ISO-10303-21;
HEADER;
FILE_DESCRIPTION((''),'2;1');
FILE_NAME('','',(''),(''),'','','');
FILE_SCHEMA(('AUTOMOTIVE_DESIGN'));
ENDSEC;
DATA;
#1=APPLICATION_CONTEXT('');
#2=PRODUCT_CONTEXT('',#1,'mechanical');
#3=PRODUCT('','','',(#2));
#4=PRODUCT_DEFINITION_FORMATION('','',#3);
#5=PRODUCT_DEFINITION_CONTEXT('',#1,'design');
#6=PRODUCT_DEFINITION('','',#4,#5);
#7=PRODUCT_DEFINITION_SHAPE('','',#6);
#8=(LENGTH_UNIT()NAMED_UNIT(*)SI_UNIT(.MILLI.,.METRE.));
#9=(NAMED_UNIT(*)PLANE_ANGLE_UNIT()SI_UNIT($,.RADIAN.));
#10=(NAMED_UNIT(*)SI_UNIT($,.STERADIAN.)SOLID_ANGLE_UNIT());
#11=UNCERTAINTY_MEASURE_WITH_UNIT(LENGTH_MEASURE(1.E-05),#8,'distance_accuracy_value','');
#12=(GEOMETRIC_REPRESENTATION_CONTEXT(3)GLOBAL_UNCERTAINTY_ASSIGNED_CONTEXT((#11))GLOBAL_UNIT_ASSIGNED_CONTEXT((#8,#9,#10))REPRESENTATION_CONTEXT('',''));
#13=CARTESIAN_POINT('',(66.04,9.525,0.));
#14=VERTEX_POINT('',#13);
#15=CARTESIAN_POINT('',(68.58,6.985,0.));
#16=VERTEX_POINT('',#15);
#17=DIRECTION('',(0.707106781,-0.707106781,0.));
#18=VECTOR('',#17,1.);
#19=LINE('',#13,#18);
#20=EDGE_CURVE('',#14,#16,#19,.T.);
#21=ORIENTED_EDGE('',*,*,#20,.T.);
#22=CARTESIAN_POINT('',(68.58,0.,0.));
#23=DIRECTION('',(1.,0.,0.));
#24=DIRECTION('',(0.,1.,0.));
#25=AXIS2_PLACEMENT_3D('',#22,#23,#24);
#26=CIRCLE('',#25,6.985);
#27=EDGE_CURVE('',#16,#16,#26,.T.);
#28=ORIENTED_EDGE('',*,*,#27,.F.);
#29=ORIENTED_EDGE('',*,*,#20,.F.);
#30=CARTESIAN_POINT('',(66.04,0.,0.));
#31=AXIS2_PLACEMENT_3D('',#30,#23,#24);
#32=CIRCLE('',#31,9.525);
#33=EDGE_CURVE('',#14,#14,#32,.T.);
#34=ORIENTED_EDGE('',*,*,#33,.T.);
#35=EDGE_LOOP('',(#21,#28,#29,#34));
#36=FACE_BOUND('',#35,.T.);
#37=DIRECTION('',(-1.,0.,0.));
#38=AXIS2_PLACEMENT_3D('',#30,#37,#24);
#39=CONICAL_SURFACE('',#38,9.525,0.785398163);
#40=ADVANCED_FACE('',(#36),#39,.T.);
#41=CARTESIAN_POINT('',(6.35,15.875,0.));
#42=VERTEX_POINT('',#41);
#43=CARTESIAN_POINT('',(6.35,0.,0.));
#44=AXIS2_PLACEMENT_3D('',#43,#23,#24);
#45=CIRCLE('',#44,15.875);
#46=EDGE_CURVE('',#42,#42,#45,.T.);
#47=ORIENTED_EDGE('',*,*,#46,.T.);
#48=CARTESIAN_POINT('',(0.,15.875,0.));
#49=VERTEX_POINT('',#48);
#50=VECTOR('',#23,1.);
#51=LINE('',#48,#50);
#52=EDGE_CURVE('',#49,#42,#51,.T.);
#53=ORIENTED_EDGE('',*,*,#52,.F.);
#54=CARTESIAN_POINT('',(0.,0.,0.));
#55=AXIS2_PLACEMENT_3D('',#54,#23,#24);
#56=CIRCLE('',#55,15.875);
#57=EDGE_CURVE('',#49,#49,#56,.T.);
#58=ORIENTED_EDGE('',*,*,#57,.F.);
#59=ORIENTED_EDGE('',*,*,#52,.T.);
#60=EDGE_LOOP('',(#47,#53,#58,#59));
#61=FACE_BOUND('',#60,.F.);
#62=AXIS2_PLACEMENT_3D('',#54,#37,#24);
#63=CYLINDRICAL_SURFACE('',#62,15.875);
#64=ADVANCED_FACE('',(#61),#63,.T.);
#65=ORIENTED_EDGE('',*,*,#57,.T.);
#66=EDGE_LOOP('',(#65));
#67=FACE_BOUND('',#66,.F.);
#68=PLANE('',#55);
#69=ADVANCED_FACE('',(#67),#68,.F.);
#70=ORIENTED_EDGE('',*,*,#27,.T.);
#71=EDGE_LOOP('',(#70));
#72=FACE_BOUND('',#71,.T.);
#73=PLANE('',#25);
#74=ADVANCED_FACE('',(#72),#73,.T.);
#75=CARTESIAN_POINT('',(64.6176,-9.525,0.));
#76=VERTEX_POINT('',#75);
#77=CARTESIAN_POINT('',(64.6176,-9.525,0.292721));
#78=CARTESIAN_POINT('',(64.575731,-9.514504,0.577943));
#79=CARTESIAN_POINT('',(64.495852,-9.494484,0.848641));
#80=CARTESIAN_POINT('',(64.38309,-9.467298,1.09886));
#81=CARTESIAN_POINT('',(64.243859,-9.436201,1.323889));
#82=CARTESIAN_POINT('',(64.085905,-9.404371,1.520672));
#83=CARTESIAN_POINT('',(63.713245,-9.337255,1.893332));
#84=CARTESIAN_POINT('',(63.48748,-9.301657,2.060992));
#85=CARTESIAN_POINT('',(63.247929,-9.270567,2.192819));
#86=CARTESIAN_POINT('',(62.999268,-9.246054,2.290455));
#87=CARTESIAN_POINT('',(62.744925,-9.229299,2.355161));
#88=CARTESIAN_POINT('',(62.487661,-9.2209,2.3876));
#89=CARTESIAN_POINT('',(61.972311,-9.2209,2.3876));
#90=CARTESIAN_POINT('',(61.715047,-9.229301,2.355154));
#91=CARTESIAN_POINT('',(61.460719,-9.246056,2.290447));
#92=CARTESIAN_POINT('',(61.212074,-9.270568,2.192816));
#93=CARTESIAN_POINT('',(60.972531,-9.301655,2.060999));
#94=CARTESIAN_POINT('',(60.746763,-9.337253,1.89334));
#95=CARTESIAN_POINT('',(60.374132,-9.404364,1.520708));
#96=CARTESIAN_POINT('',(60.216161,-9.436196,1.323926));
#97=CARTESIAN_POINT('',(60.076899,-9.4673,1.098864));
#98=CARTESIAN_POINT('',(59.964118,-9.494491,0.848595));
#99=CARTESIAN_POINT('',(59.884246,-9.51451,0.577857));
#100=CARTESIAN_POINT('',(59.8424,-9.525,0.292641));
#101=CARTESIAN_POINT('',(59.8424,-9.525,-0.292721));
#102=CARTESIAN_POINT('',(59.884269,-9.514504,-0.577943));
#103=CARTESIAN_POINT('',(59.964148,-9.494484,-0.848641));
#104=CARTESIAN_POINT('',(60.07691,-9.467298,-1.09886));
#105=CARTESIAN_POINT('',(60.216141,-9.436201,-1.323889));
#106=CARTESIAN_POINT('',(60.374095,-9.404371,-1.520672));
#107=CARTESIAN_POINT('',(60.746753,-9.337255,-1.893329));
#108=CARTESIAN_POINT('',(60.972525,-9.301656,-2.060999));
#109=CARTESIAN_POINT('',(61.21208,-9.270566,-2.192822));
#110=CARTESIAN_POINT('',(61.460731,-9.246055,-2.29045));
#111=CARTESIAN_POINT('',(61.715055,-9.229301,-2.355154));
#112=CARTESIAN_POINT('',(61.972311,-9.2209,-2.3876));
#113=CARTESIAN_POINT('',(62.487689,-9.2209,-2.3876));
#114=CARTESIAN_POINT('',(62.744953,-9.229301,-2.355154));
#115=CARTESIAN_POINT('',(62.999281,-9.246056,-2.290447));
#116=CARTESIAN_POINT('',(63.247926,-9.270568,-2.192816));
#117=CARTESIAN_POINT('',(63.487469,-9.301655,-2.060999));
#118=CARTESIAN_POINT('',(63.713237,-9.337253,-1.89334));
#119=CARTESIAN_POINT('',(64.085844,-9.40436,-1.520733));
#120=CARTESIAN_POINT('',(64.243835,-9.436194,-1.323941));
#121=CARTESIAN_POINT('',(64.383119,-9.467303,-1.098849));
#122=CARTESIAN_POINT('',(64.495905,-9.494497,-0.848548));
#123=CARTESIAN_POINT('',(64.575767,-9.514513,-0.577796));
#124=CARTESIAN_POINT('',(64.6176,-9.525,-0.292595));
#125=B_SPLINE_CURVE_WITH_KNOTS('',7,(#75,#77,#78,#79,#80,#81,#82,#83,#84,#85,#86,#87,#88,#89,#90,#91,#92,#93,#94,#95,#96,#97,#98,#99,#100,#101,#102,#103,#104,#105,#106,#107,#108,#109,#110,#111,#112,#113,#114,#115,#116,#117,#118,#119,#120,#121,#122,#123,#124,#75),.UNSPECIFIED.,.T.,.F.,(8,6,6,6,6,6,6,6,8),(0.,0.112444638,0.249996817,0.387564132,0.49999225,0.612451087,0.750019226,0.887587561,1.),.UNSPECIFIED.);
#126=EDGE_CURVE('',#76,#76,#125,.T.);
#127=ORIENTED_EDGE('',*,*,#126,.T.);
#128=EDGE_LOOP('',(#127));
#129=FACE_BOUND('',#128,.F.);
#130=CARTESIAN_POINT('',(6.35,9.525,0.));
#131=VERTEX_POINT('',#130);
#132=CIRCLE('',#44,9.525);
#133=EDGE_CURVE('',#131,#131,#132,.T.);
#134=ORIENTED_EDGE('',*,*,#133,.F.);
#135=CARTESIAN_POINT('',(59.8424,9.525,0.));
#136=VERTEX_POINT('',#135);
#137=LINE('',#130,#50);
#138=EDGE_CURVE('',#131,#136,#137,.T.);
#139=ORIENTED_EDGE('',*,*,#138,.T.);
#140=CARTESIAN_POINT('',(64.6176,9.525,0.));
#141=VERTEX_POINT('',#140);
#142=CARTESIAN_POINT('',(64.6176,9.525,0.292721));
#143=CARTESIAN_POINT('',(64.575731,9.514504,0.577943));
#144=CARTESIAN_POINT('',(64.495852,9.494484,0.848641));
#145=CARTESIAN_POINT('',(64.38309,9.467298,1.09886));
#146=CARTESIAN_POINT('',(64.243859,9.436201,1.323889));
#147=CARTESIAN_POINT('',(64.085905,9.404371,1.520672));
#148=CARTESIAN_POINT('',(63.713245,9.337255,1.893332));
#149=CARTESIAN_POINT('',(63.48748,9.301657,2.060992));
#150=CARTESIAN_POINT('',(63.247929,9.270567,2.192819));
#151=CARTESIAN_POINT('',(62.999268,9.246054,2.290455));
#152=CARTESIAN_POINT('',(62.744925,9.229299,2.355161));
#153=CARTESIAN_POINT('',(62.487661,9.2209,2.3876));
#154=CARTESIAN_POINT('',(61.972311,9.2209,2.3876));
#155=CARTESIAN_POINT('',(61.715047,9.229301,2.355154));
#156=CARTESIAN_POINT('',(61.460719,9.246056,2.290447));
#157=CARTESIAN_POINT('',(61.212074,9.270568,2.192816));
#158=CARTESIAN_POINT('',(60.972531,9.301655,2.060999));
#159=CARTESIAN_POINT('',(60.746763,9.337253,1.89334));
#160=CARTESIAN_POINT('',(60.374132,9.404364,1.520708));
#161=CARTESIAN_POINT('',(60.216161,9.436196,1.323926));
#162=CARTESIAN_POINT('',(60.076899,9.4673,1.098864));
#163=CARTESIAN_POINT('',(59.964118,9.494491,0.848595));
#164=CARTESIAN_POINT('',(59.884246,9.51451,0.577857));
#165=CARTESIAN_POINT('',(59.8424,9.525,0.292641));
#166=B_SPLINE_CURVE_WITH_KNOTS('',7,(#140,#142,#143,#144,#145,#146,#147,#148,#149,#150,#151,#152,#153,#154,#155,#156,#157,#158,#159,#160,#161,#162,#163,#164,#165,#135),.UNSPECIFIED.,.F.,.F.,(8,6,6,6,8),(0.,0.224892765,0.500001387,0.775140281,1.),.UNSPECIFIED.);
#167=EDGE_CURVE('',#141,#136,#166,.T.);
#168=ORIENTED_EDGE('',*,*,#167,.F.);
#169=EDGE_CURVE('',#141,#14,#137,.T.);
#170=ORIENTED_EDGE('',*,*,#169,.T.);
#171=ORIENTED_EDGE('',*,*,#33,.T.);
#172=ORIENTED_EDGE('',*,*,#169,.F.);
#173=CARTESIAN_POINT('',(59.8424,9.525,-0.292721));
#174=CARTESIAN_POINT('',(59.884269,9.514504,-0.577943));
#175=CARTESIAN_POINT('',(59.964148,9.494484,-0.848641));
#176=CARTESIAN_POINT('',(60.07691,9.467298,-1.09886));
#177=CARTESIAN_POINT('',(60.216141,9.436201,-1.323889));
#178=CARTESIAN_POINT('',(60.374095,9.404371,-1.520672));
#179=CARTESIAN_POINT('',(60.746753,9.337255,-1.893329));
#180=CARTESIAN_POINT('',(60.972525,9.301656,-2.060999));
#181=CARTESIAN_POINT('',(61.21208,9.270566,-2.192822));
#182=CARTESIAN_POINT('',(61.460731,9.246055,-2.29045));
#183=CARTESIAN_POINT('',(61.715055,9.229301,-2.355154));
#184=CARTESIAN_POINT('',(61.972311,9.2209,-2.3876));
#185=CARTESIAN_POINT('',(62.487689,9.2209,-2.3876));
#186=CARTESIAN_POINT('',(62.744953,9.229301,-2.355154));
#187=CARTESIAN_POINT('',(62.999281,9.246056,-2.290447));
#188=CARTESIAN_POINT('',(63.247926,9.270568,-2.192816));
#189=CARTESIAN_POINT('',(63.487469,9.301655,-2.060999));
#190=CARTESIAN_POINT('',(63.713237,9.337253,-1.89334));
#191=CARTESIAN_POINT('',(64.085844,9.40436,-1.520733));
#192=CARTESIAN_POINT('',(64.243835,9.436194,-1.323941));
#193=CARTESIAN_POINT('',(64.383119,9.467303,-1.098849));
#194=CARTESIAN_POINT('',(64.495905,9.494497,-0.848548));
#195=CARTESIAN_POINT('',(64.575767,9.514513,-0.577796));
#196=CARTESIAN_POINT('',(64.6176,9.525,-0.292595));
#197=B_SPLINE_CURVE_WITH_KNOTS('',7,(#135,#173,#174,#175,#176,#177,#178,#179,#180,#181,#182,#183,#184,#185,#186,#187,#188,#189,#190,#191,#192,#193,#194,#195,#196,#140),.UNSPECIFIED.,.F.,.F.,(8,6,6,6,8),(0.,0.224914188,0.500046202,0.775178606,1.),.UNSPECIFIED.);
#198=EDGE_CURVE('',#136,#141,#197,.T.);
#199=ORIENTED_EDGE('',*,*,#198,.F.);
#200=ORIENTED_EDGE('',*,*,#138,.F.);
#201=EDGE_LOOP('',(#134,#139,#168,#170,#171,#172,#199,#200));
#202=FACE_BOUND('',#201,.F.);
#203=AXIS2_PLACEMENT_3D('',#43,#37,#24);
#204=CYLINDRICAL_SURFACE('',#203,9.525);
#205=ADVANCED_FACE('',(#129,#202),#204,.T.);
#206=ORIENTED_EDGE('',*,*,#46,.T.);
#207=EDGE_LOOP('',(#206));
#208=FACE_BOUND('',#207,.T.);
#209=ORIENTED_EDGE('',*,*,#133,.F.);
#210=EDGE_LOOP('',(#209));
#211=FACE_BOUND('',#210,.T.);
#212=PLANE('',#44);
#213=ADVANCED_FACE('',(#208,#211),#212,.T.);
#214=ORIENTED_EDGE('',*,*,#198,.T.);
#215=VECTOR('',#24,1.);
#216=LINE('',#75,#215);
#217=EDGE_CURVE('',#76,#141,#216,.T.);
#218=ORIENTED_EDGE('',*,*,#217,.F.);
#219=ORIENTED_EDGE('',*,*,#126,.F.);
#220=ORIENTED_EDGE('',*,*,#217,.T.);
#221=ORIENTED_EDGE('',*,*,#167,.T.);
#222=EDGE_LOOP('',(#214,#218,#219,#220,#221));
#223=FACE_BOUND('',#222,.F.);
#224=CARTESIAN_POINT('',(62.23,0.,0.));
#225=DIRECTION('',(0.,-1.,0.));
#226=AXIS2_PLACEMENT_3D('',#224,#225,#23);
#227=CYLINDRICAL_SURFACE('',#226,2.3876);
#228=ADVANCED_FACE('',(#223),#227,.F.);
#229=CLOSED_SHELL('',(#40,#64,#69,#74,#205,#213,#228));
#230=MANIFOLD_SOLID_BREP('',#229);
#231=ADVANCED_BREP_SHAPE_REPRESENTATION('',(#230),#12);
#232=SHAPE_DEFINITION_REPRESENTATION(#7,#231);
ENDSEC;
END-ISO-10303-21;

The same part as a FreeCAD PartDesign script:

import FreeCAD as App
import Part
import Sketcher
Q = App.Units.Quantity


def edges_at(feature, points):
    """Names of the edges that pass closest to the given points."""
    edges = feature.Shape.Edges
    near = lambda p: min(range(len(edges)), key=lambda i: edges[i].distToShape(Part.Vertex(*p))[0])
    return sorted({f"Edge{near(p) + 1}" for p in points})

doc = App.newDocument("Part")
body = doc.addObject("PartDesign::Body", "Body")

# Sketch on YZ plane
sketch1 = body.newObject("Sketcher::SketchObject", "Sketch")
sketch1.AttachmentSupport = (doc.getObject("YZ_Plane"), [""])
sketch1.MapMode = "FlatFace"
sketch1.addGeometry(Part.Circle(App.Vector(0, 0, 0), App.Vector(0, 0, 1), 16), False)
sketch1.addConstraint([
    Sketcher.Constraint("Coincident", 0, 3, -1, 1),
    Sketcher.Constraint("Diameter", 0, Q("1.25 in")),
])
pad1 = body.newObject("PartDesign::Pad", "Pad")
pad1.Profile = sketch1
pad1.Length = Q("0.25 in")

# Sketch on YZ plane
sketch2 = body.newObject("Sketcher::SketchObject", "Sketch001")
sketch2.AttachmentSupport = (doc.getObject("YZ_Plane"), [""])
sketch2.MapMode = "FlatFace"
sketch2.AttachmentOffset = App.Placement(App.Vector(0, 0, 0.25 * 25.4), App.Rotation())
sketch2.addGeometry(Part.Circle(App.Vector(0, 0, 0), App.Vector(0, 0, 1), 10), False)
sketch2.addConstraint([
    Sketcher.Constraint("Coincident", 0, 3, -1, 1),
    Sketcher.Constraint("Diameter", 0, Q("0.75 in")),
])
pad2 = body.newObject("PartDesign::Pad", "Pad001")
pad2.Profile = sketch2
pad2.Length = Q("2.45 in")
doc.recompute()

chamfer = body.newObject("PartDesign::Chamfer", "Chamfer")
chamfer.Base = (pad2, edges_at(pad2, [(68.58, -9.525, 0)]))
chamfer.Size = Q("0.1 in")

# Sketch on XZ plane
sketch3 = body.newObject("Sketcher::SketchObject", "Sketch002")
sketch3.AttachmentSupport = (doc.getObject("XZ_Plane"), [""])
sketch3.MapMode = "FlatFace"
sketch3.addGeometry(Part.Circle(App.Vector(62.2, 0, 0), App.Vector(0, 0, 1), 2.4), False)
sketch3.addConstraint([
    Sketcher.Constraint("PointOnObject", 0, 3, -1),
    Sketcher.Constraint("Diameter", 0, Q("0.188 in")),
    Sketcher.Constraint("DistanceX", -1, 1, 0, 3, Q("2.45 in")),
])
pocket1 = body.newObject("PartDesign::Pocket", "Pocket")
pocket1.Profile = sketch3
pocket1.Type = "ThroughAll"
pocket1.Midplane = True

doc.recompute()
